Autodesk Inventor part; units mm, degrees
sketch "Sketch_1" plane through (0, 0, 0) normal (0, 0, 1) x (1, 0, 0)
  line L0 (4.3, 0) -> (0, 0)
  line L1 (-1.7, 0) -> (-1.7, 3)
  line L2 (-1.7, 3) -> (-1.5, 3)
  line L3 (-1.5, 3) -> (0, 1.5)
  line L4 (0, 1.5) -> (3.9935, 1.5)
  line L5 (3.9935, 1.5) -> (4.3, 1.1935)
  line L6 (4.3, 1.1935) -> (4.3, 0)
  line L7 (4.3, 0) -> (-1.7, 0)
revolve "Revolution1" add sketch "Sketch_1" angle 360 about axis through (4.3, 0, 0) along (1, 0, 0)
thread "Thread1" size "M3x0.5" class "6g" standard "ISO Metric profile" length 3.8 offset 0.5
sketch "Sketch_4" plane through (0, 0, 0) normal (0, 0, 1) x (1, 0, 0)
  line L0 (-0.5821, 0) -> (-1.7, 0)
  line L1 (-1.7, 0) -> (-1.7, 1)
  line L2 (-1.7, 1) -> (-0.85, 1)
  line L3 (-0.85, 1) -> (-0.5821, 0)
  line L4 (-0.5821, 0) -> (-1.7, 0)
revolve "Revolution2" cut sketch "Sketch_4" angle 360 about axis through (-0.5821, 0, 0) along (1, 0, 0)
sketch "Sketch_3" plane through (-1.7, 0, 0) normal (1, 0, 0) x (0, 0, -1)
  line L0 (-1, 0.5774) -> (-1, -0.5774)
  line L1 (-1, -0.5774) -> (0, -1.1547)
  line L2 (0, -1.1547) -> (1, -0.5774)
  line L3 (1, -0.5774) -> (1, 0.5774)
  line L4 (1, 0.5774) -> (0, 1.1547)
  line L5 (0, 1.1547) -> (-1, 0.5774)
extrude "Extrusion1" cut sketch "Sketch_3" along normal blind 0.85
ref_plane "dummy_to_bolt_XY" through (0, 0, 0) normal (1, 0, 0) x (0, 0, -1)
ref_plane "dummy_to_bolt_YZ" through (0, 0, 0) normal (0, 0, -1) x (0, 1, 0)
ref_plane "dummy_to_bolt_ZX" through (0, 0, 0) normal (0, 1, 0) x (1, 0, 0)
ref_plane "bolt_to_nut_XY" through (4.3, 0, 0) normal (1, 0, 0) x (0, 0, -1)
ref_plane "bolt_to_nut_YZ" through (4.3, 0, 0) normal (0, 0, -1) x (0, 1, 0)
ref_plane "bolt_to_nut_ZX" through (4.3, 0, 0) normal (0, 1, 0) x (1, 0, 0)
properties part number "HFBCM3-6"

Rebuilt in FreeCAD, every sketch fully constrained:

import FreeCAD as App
import Part
import Sketcher

V = App.Vector
Q = App.Units.Quantity


def add_polygon(sketch, points):
    """Adds a closed chain of lines whose ends are joined by coincident constraints."""
    first, n = sketch.GeometryCount, len(points)
    for a, b in zip(points, points[1:] + points[:1]):
        sketch.addGeometry(Part.LineSegment(App.Vector(*a, 0), App.Vector(*b, 0)), False)
    for i in range(n):
        sketch.addConstraint(Sketcher.Constraint("Coincident", first + i, 2, first + (i + 1) % n, 1))

doc = App.newDocument("Part")
body = doc.addObject("PartDesign::Body", "Body")

# Sketch on XY plane
sketch1 = body.newObject("Sketcher::SketchObject", "Sketch")
sketch1.AttachmentSupport = (doc.getObject("XY_Plane"), [""])
sketch1.MapMode = "FlatFace"
add_polygon(sketch1, [(-1.7, 0), (4.3, 0), (4.3, 1.19), (3.99, 1.5), (0, 1.5), (-1.5, 3), (-1.7, 3)])  # lines 0-6
sketch1.addConstraint([
    Sketcher.Constraint("Horizontal", 0),
    Sketcher.Constraint("Vertical", 1),
    Sketcher.Constraint("Horizontal", 3),
    Sketcher.Constraint("Horizontal", 5),
    Sketcher.Constraint("Vertical", 6),
    Sketcher.Constraint("PointOnObject", 0, 2, -1),
    Sketcher.Constraint("PointOnObject", 3, 2, -2),
    Sketcher.Constraint("Parallel", 2, 4),
    Sketcher.Constraint("DistanceX", 0, 1, 0, 2, Q("6 mm")),
    Sketcher.Constraint("DistanceY", 6, 2, 6, 1, Q("3 mm")),
    Sketcher.Constraint("Angle", 2, Q("135 deg")),
    Sketcher.Constraint("DistanceX", 5, 2, 5, 1, Q("0.2 mm")),
    Sketcher.Constraint("DistanceX", -1, 1, 0, 2, Q("4.3 mm")),
    Sketcher.Constraint("DistanceX", 3, 2, 3, 1, Q("3.9935 mm")),
])
revolution = body.newObject("PartDesign::Revolution", "Revolution")
revolution.Profile = sketch1
revolution.ReferenceAxis = (sketch1, ["H_Axis"])
revolution.Angle = 360

# Sketch on XY plane
sketch2 = body.newObject("Sketcher::SketchObject", "Sketch001")
sketch2.AttachmentSupport = (doc.getObject("XY_Plane"), [""])
sketch2.MapMode = "FlatFace"
add_polygon(sketch2, [(-1.7, 0), (-0.6, 0), (-0.8, 1), (-1.7, 1)])  # lines 0-3
sketch2.addConstraint([
    Sketcher.Constraint("Horizontal", 0),
    Sketcher.Constraint("Horizontal", 2),
    Sketcher.Constraint("Vertical", 3),
    Sketcher.Constraint("PointOnObject", 0, 2, -1),
    Sketcher.Constraint("DistanceY", 3, 2, 3, 1, Q("1 mm")),
    Sketcher.Constraint("DistanceX", 2, 2, 2, 1, Q("0.85 mm")),
    Sketcher.Constraint("DistanceX", 2, 2, -1, 1, Q("1.7 mm")),
    Sketcher.Constraint("DistanceX", 0, 1, 0, 2, Q("1.118 mm")),
])
groove = body.newObject("PartDesign::Groove", "Groove")
groove.Profile = sketch2
groove.ReferenceAxis = (sketch2, ["H_Axis"])
groove.Angle = 360

# Sketch on YZ plane
sketch3 = body.newObject("Sketcher::SketchObject", "Sketch002")
sketch3.AttachmentSupport = (doc.getObject("YZ_Plane"), [""])
sketch3.MapMode = "FlatFace"
sketch3.AttachmentOffset = App.Placement(V(0, 0, -1.7), App.Rotation())
add_polygon(sketch3, [(1.2, 0), (0.6, 1), (-0.6, 1), (-1.2, 0), (-0.6, -1), (0.6, -1)])  # lines 0-5
sketch3.addConstraint([
    Sketcher.Constraint("Horizontal", 1),
    Sketcher.Constraint("Horizontal", 4),
    Sketcher.Constraint("Symmetric", 0, 2, 3, 2, -1, 1),
    Sketcher.Constraint("Symmetric", 2, 2, 5, 2, -1, 1),
    Sketcher.Constraint("PointOnObject", 2, 2, -1),
    Sketcher.Constraint("Parallel", 2, 5),
    Sketcher.Constraint("Vertical", 1, 2, 3, 2),
    Sketcher.Constraint("DistanceY", -1, 1, 0, 2, Q("1 mm")),
    Sketcher.Constraint("DistanceX", 1, 2, 1, 1, Q("1.1548 mm")),
    Sketcher.Constraint("DistanceX", 2, 2, 0, 2, Q("1.732 mm")),
])
pocket1 = body.newObject("PartDesign::Pocket", "Pocket")
pocket1.Profile = sketch3
pocket1.Length = 0.85
pocket1.Reversed = True

doc.recompute()
